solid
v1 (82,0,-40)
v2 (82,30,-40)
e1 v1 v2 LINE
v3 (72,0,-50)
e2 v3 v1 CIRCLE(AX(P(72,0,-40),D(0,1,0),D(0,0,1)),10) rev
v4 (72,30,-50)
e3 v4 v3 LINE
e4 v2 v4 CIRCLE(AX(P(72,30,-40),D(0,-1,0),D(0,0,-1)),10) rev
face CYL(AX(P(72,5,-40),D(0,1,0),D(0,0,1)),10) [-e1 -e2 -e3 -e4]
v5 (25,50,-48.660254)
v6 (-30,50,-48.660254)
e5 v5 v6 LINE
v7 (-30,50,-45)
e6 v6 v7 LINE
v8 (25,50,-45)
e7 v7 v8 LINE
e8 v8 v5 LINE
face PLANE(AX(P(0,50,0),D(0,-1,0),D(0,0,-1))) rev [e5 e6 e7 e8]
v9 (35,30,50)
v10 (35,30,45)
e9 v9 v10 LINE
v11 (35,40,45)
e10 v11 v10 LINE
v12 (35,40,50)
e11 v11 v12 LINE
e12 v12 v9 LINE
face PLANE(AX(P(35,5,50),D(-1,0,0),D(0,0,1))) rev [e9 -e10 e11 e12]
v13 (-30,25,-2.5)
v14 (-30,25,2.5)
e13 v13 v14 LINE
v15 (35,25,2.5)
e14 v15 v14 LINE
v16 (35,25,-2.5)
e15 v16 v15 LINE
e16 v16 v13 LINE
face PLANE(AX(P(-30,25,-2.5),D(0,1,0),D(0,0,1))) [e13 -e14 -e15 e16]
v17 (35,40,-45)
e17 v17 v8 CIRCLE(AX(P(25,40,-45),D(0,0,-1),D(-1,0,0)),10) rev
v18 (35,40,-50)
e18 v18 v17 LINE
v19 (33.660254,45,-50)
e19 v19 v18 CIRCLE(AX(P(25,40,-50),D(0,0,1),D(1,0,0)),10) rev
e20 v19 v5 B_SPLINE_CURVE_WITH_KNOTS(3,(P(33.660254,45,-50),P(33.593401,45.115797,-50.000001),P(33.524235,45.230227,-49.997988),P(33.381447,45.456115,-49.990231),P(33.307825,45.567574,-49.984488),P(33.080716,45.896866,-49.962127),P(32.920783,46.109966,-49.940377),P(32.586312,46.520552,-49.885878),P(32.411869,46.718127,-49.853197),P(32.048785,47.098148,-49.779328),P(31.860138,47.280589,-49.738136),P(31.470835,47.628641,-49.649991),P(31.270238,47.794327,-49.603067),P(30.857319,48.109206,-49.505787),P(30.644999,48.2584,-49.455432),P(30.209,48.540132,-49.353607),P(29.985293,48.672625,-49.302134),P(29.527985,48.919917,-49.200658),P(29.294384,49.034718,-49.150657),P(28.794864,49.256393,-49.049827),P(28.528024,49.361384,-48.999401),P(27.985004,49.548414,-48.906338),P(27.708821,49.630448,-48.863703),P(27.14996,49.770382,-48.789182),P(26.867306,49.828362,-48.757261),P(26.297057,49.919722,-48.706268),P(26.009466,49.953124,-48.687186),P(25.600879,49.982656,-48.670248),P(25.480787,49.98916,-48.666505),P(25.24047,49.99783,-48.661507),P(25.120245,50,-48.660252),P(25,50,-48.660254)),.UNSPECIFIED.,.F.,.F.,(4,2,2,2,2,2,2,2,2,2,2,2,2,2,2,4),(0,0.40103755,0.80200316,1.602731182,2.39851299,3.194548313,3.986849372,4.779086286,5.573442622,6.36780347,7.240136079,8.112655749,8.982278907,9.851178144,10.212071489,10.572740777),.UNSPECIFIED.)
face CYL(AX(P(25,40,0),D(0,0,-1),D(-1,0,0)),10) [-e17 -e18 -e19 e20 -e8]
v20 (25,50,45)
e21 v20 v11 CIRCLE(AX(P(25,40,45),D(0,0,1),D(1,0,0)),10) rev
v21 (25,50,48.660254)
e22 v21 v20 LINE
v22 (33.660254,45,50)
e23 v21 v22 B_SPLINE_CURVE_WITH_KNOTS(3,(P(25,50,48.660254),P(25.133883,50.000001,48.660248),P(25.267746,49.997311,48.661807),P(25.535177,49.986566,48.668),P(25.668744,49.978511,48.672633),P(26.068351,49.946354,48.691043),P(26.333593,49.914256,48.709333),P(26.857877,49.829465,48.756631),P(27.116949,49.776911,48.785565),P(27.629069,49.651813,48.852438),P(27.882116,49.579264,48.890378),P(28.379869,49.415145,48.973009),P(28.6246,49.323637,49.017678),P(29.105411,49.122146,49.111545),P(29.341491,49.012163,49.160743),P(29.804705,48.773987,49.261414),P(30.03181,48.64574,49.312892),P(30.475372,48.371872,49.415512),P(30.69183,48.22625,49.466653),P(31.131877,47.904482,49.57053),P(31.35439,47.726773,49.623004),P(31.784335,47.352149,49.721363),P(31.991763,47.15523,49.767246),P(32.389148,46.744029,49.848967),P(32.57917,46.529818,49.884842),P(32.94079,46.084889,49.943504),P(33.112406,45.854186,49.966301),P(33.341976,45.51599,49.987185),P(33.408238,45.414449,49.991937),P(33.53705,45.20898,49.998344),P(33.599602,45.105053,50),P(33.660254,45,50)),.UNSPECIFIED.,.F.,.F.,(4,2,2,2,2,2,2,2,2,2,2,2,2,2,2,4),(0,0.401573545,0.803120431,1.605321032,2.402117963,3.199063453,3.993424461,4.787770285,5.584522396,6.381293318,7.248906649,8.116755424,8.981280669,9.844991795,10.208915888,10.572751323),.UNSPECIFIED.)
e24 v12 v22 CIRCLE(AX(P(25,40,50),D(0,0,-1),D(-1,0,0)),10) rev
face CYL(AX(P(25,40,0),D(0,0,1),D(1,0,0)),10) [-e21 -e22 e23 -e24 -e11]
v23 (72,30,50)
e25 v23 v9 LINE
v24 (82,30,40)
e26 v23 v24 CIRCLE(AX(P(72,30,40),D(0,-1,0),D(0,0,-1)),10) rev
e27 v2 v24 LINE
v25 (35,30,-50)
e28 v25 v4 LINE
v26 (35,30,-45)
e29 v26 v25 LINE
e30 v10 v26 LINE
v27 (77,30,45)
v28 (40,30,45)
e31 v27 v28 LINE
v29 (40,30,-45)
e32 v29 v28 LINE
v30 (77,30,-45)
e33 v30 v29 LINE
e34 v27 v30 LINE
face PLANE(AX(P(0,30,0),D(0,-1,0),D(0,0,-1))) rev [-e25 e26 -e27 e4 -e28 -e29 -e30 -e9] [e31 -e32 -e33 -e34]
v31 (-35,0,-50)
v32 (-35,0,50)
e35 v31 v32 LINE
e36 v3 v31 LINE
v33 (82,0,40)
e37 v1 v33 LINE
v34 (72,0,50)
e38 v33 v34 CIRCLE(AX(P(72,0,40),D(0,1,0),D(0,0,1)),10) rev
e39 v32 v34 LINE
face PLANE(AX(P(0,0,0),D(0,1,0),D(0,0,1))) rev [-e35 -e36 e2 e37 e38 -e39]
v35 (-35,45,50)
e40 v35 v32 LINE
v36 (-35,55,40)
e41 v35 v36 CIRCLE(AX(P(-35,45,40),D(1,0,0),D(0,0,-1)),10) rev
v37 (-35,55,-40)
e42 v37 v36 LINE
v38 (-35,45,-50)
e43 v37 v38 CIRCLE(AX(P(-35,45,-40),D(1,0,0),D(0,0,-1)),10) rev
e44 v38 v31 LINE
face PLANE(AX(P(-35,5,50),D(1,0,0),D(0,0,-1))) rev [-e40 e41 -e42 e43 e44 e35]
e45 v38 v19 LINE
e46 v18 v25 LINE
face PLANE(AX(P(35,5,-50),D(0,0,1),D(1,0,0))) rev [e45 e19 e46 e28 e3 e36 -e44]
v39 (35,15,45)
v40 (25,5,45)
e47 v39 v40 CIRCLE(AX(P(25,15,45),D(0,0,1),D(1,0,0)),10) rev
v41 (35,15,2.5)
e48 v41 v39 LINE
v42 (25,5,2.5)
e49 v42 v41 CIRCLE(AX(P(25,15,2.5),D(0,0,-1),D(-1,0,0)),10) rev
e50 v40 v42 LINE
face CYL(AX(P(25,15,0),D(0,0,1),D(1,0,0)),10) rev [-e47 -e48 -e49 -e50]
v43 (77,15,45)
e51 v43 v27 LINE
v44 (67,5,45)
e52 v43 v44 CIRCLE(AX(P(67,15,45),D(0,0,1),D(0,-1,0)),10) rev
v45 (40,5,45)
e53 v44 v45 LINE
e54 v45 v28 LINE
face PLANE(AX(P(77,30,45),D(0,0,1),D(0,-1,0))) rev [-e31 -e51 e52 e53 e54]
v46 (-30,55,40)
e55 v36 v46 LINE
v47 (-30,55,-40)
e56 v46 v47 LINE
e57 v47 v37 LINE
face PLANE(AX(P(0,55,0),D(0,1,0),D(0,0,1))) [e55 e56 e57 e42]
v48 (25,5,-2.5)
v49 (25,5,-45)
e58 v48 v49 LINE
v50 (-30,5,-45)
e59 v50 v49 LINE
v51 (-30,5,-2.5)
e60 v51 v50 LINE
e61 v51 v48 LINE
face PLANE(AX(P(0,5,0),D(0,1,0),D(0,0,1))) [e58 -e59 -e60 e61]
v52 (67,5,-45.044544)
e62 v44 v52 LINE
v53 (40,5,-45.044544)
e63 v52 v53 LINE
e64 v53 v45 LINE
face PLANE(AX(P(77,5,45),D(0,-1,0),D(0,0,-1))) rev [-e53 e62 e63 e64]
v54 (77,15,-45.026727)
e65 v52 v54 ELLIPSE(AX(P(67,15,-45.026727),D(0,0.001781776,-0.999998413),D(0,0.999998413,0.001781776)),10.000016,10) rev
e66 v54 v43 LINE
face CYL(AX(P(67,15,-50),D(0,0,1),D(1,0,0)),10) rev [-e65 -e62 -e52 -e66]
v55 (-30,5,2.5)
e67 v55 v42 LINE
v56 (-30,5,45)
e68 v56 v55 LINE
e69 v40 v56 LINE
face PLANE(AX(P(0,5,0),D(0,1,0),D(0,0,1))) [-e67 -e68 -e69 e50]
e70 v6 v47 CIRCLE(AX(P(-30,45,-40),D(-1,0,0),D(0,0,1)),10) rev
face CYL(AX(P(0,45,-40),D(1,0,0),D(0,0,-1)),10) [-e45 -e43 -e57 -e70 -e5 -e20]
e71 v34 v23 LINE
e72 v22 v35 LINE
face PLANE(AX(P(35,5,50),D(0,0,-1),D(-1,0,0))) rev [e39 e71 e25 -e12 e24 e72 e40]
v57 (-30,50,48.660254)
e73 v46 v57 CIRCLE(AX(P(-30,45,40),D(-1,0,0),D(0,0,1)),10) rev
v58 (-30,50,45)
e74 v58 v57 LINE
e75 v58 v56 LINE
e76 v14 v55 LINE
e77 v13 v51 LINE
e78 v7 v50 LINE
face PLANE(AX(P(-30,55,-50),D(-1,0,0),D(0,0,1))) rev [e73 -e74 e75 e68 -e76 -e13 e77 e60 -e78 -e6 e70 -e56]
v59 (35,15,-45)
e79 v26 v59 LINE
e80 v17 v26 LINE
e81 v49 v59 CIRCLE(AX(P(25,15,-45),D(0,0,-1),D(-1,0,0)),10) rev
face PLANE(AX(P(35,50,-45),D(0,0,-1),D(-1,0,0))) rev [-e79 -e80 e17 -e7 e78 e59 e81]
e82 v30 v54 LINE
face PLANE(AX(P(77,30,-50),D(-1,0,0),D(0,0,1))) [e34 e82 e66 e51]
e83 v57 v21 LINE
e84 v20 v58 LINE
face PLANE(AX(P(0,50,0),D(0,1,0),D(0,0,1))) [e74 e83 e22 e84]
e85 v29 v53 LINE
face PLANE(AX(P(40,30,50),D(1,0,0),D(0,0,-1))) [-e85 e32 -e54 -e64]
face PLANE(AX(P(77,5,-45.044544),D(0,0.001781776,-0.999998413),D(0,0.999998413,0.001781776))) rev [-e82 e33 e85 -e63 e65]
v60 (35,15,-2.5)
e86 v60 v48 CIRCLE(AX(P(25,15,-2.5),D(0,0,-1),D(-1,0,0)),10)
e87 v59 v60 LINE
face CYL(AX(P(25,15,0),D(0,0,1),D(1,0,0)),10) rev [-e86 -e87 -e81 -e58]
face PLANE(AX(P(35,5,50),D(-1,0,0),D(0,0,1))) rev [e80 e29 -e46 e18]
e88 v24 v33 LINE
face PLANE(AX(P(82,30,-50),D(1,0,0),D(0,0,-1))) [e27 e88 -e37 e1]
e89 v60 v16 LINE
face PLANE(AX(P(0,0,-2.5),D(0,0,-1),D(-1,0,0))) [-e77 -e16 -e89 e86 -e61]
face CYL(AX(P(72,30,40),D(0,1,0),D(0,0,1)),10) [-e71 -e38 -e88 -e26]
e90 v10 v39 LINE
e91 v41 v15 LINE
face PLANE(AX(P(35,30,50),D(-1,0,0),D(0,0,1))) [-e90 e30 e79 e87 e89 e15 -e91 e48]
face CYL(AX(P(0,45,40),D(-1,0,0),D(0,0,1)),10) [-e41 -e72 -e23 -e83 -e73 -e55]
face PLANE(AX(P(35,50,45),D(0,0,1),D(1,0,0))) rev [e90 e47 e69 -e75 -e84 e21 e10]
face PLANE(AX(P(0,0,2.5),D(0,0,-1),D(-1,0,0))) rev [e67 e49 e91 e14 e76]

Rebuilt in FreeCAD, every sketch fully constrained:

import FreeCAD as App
import Part
import Sketcher
from FreeCAD import Vector
Q = App.Units.Quantity


def edges_at(feature, points):
    """Names of the edges that pass closest to the given points."""
    edges = feature.Shape.Edges
    near = lambda p: min(range(len(edges)), key=lambda i: edges[i].distToShape(Part.Vertex(*p))[0])
    return sorted({f"Edge{near(p) + 1}" for p in points})


def add_polygon(sketch, points):
    """Adds a closed chain of lines whose ends are joined by coincident constraints."""
    first, n = sketch.GeometryCount, len(points)
    for a, b in zip(points, points[1:] + points[:1]):
        sketch.addGeometry(Part.LineSegment(App.Vector(*a, 0), App.Vector(*b, 0)), False)
    for i in range(n):
        sketch.addConstraint(Sketcher.Constraint("Coincident", first + i, 2, first + (i + 1) % n, 1))

doc = App.newDocument("Part")
body = doc.addObject("PartDesign::Body", "Body")

# Sketch on XZ plane
sketch1 = doc.addObject("Sketcher::SketchObject", "Sketch")
body.addObject(sketch1)
sketch1.AttachmentSupport = (doc.XZ_Plane, [""])
sketch1.MapMode = "FlatFace"
add_polygon(sketch1, [(-35, -50), (-35, 50), (35, 50), (35, -50)])  # lines 0-3
sketch1.addConstraint([
    Sketcher.Constraint("Vertical", 0),
    Sketcher.Constraint("Horizontal", 1),
    Sketcher.Constraint("Vertical", 2),
    Sketcher.Constraint("Horizontal", 3),
    Sketcher.Constraint("Symmetric", 0, 2, 2, 2, -1, 1),
    Sketcher.Constraint("DistanceX", 1, 1, 1, 2, Q("70 mm")),
    Sketcher.Constraint("DistanceY", 0, 1, 0, 2, Q("100 mm")),
])
pad1 = doc.addObject("PartDesign::Pad", "Pad")
body.addObject(pad1)
pad1.Profile = sketch1
pad1.Length = 5
pad1.Reversed = True

# Sketch on XZ plane
sketch2 = doc.addObject("Sketcher::SketchObject", "Sketch001")
body.addObject(sketch2)
sketch2.AttachmentSupport = (doc.XZ_Plane, [""])
sketch2.MapMode = "FlatFace"
sketch2.AttachmentOffset = App.Placement(Vector(0, 0, -5), App.Rotation())
add_polygon(sketch2, [(-35, -50), (-35, 50), (-30, 50), (-30, -50)])  # lines 0-3
sketch2.addConstraint([
    Sketcher.Constraint("Vertical", 0),
    Sketcher.Constraint("Horizontal", 1),
    Sketcher.Constraint("Vertical", 2),
    Sketcher.Constraint("Horizontal", 3),
    Sketcher.Constraint("DistanceX", 1, 1, 1, 2, Q("5 mm")),
    Sketcher.Constraint("DistanceY", 0, 1, 0, 2, Q("100 mm")),
    Sketcher.Constraint("DistanceX", 0, 2, -1, 1, Q("35 mm")),
    Sketcher.Constraint("DistanceY", -1, 1, 0, 2, Q("50 mm")),
])
pad2 = doc.addObject("PartDesign::Pad", "Pad001")
body.addObject(pad2)
pad2.Profile = sketch2
pad2.Length = 50
pad2.Reversed = True

# Sketch on XZ plane
sketch3 = doc.addObject("Sketcher::SketchObject", "Sketch002")
body.addObject(sketch3)
sketch3.AttachmentSupport = (doc.XZ_Plane, [""])
sketch3.MapMode = "FlatFace"
sketch3.AttachmentOffset = App.Placement(Vector(0, 0, -5), App.Rotation())
add_polygon(sketch3, [(-30, 45), (-30, 50), (35, 50), (35, 45)])  # lines 0-3
sketch3.addConstraint([
    Sketcher.Constraint("Vertical", 0),
    Sketcher.Constraint("Horizontal", 1),
    Sketcher.Constraint("Vertical", 2),
    Sketcher.Constraint("Horizontal", 3),
    Sketcher.Constraint("DistanceX", 1, 1, 1, 2, Q("65 mm")),
    Sketcher.Constraint("DistanceY", 0, 1, 0, 2, Q("5 mm")),
    Sketcher.Constraint("DistanceX", 0, 2, -1, 1, Q("30 mm")),
    Sketcher.Constraint("DistanceY", -1, 1, 0, 2, Q("50 mm")),
])
pad3 = doc.addObject("PartDesign::Pad", "Pad002")
body.addObject(pad3)
pad3.Profile = sketch3
pad3.Length = 45
pad3.Reversed = True

# Sketch on XZ plane
sketch4 = doc.addObject("Sketcher::SketchObject", "Sketch003")
body.addObject(sketch4)
sketch4.AttachmentSupport = (doc.XZ_Plane, [""])
sketch4.MapMode = "FlatFace"
sketch4.AttachmentOffset = App.Placement(Vector(0, 0, -5), App.Rotation())
add_polygon(sketch4, [(-30, -50), (-30, -45), (35, -45), (35, -50)])  # lines 0-3
sketch4.addConstraint([
    Sketcher.Constraint("Vertical", 0),
    Sketcher.Constraint("Horizontal", 1),
    Sketcher.Constraint("Vertical", 2),
    Sketcher.Constraint("Horizontal", 3),
    Sketcher.Constraint("DistanceX", 1, 1, 1, 2, Q("65 mm")),
    Sketcher.Constraint("DistanceY", 0, 1, 0, 2, Q("5 mm")),
    Sketcher.Constraint("DistanceX", 0, 2, -1, 1, Q("30 mm")),
    Sketcher.Constraint("DistanceY", 0, 2, -1, 1, Q("45 mm")),
])
pad4 = doc.addObject("PartDesign::Pad", "Pad003")
body.addObject(pad4)
pad4.Profile = sketch4
pad4.Length = 45
pad4.Reversed = True

# Sketch on XZ plane
sketch5 = doc.addObject("Sketcher::SketchObject", "Sketch004")
body.addObject(sketch5)
sketch5.AttachmentSupport = (doc.XZ_Plane, [""])
sketch5.MapMode = "FlatFace"
add_polygon(sketch5, [(35, 50), (35, -50), (40, -50), (40, 50)])  # lines 0-3
sketch5.addConstraint([
    Sketcher.Constraint("Vertical", 0),
    Sketcher.Constraint("Horizontal", 1),
    Sketcher.Constraint("Vertical", 2),
    Sketcher.Constraint("Horizontal", 3),
    Sketcher.Constraint("DistanceX", 1, 1, 1, 2, Q("5 mm")),
    Sketcher.Constraint("DistanceY", 0, 2, 0, 1, Q("100 mm")),
    Sketcher.Constraint("DistanceX", -1, 1, 0, 2, Q("35 mm")),
    Sketcher.Constraint("DistanceY", 0, 2, -1, 1, Q("50 mm")),
])
pad5 = doc.addObject("PartDesign::Pad", "Pad004")
body.addObject(pad5)
pad5.Profile = sketch5
pad5.Length = 30
pad5.Reversed = True
doc.recompute()

fillet = doc.addObject("PartDesign::Fillet", "Fillet")
body.addObject(fillet)
fillet.Base = (pad5, edges_at(pad5, [(35, 50, 47.5)]))
fillet.Radius = 10
doc.recompute()

fillet2 = doc.addObject("PartDesign::Fillet", "Fillet001")
body.addObject(fillet2)
fillet2.Base = (fillet, edges_at(fillet, [(35, 50, -47.5)]))
fillet2.Radius = 10
doc.recompute()

fillet3 = doc.addObject("PartDesign::Fillet", "Fillet002")
body.addObject(fillet3)
fillet3.Base = (fillet2, edges_at(fillet2, [(-32.5, 55, 50)]))
fillet3.Radius = 10
doc.recompute()

fillet4 = doc.addObject("PartDesign::Fillet", "Fillet003")
body.addObject(fillet4)
fillet4.Base = (fillet3, edges_at(fillet3, [(-32.5, 55, -50)]))
fillet4.Radius = 10

# Sketch on XY plane
sketch6 = doc.addObject("Sketcher::SketchObject", "Sketch005")
body.addObject(sketch6)
sketch6.AttachmentSupport = (doc.XY_Plane, [""])
sketch6.MapMode = "FlatFace"
add_polygon(sketch6, [(-30, 25), (-30, 5), (35, 5), (35, 25)])  # lines 0-3
sketch6.addConstraint([
    Sketcher.Constraint("Vertical", 0),
    Sketcher.Constraint("Horizontal", 1),
    Sketcher.Constraint("Vertical", 2),
    Sketcher.Constraint("Horizontal", 3),
    Sketcher.Constraint("DistanceX", 1, 1, 1, 2, Q("65 mm")),
    Sketcher.Constraint("DistanceY", 0, 2, 0, 1, Q("20 mm")),
    Sketcher.Constraint("DistanceX", 0, 2, -1, 1, Q("30 mm")),
    Sketcher.Constraint("DistanceY", -1, 1, 0, 2, Q("5 mm")),
])
pad6 = doc.addObject("PartDesign::Pad", "Pad005")
body.addObject(pad6)
pad6.Profile = sketch6
pad6.Type = "TwoLengths"
pad6.Length = 2.5
pad6.Length2 = 2.5

# Sketch on YZ plane
sketch7 = doc.addObject("Sketcher::SketchObject", "Sketch006")
body.addObject(sketch7)
sketch7.AttachmentSupport = (doc.YZ_Plane, [""])
sketch7.MapMode = "FlatFace"
sketch7.AttachmentOffset = App.Placement(Vector(0, 0, 40), App.Rotation())
add_polygon(sketch7, [(30, 45), (30, 50), (0, 50), (0, -50), (30, -50), (30, -45), (5, -45), (5, 45)])  # lines 0-7
sketch7.addConstraint([
    Sketcher.Constraint("Vertical", 0),
    Sketcher.Constraint("Horizontal", 1),
    Sketcher.Constraint("Vertical", 2),
    Sketcher.Constraint("Horizontal", 3),
    Sketcher.Constraint("Vertical", 4),
    Sketcher.Constraint("Vertical", 6),
    Sketcher.Constraint("Horizontal", 7),
    Sketcher.Constraint("Symmetric", 1, 2, 2, 2, -1, 1),
    Sketcher.Constraint("Symmetric", 4, 2, 7, 2, -1),
    Sketcher.Constraint("DistanceX", 1, 2, 1, 1, Q("30 mm")),
    Sketcher.Constraint("DistanceX", 7, 1, 7, 2, Q("25 mm")),
    Sketcher.Constraint("DistanceY", 0, 1, 0, 2, Q("5 mm")),
    Sketcher.Constraint("DistanceY", 2, 2, 2, 1, Q("100 mm")),
    Sketcher.Constraint("DistanceY", 6, 1, 6, 2, Q("90.044544 mm")),
])
pad7 = doc.addObject("PartDesign::Pad", "Pad006")
body.addObject(pad7)
pad7.Profile = sketch7
pad7.Length = 37

# Sketch on XZ plane
sketch8 = doc.addObject("Sketcher::SketchObject", "Sketch007")
body.addObject(sketch8)
sketch8.AttachmentSupport = (doc.XZ_Plane, [""])
sketch8.MapMode = "FlatFace"
add_polygon(sketch8, [(77, 50), (77, -50), (82, -50), (82, 50)])  # lines 0-3
sketch8.addConstraint([
    Sketcher.Constraint("Vertical", 0),
    Sketcher.Constraint("Horizontal", 1),
    Sketcher.Constraint("Vertical", 2),
    Sketcher.Constraint("Horizontal", 3),
    Sketcher.Constraint("DistanceX", 1, 1, 1, 2, Q("5 mm")),
    Sketcher.Constraint("DistanceY", 0, 2, 0, 1, Q("100 mm")),
    Sketcher.Constraint("DistanceX", -1, 1, 0, 2, Q("77 mm")),
    Sketcher.Constraint("DistanceY", 0, 2, -1, 1, Q("50 mm")),
])
pad8 = doc.addObject("PartDesign::Pad", "Pad007")
body.addObject(pad8)
pad8.Profile = sketch8
pad8.Length = 30
pad8.Reversed = True
doc.recompute()

fillet5 = doc.addObject("PartDesign::Fillet", "Fillet004")
body.addObject(fillet5)
fillet5.Base = (pad8, edges_at(pad8, [(77, 5, -0.022)]))
fillet5.Radius = 10
doc.recompute()

fillet6 = doc.addObject("PartDesign::Fillet", "Fillet005")
body.addObject(fillet6)
fillet6.Base = (fillet5, edges_at(fillet5, [(82, 15, -50)]))
fillet6.Radius = 10
doc.recompute()

fillet7 = doc.addObject("PartDesign::Fillet", "Fillet006")
body.addObject(fillet7)
fillet7.Base = (fillet6, edges_at(fillet6, [(82, 15, 50)]))
fillet7.Radius = 10
doc.recompute()

fillet8 = doc.addObject("PartDesign::Fillet", "Fillet007")
body.addObject(fillet8)
fillet8.Base = (fillet7, edges_at(fillet7, [(35, 5, -23.75), (35, 5, 23.75)]))
fillet8.Radius = 10

doc.recompute()
